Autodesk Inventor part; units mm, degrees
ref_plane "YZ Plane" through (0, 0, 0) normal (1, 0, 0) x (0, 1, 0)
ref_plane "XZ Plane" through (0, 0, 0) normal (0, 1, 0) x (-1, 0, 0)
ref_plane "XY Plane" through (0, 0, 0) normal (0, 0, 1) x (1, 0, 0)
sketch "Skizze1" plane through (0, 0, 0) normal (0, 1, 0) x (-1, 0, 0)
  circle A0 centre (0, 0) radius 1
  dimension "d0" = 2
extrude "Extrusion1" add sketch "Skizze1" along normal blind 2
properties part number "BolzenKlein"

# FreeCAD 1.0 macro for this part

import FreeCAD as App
import Part
import Sketcher
from FreeCAD import Vector
Q = App.Units.Quantity

doc = App.newDocument("Part")
body = doc.addObject("PartDesign::Body", "Body")

# Sketch on XZ plane
sketch1 = body.newObject("Sketcher::SketchObject", "Sketch")
sketch1.AttachmentSupport = (doc.getObject("XZ_Plane"), [""])
sketch1.MapMode = "FlatFace"
sketch1.addGeometry(Part.Circle(Vector(0, 0, 0), Vector(0, 0, 1), 1), False)
sketch1.addConstraint([
    Sketcher.Constraint("Coincident", 0, 3, -1, 1),
    Sketcher.Constraint("Diameter", 0, Q("2 mm")),
])
pad1 = body.newObject("PartDesign::Pad", "Pad")
pad1.Profile = sketch1
pad1.Length = 2
pad1.Reversed = True

doc.recompute()
